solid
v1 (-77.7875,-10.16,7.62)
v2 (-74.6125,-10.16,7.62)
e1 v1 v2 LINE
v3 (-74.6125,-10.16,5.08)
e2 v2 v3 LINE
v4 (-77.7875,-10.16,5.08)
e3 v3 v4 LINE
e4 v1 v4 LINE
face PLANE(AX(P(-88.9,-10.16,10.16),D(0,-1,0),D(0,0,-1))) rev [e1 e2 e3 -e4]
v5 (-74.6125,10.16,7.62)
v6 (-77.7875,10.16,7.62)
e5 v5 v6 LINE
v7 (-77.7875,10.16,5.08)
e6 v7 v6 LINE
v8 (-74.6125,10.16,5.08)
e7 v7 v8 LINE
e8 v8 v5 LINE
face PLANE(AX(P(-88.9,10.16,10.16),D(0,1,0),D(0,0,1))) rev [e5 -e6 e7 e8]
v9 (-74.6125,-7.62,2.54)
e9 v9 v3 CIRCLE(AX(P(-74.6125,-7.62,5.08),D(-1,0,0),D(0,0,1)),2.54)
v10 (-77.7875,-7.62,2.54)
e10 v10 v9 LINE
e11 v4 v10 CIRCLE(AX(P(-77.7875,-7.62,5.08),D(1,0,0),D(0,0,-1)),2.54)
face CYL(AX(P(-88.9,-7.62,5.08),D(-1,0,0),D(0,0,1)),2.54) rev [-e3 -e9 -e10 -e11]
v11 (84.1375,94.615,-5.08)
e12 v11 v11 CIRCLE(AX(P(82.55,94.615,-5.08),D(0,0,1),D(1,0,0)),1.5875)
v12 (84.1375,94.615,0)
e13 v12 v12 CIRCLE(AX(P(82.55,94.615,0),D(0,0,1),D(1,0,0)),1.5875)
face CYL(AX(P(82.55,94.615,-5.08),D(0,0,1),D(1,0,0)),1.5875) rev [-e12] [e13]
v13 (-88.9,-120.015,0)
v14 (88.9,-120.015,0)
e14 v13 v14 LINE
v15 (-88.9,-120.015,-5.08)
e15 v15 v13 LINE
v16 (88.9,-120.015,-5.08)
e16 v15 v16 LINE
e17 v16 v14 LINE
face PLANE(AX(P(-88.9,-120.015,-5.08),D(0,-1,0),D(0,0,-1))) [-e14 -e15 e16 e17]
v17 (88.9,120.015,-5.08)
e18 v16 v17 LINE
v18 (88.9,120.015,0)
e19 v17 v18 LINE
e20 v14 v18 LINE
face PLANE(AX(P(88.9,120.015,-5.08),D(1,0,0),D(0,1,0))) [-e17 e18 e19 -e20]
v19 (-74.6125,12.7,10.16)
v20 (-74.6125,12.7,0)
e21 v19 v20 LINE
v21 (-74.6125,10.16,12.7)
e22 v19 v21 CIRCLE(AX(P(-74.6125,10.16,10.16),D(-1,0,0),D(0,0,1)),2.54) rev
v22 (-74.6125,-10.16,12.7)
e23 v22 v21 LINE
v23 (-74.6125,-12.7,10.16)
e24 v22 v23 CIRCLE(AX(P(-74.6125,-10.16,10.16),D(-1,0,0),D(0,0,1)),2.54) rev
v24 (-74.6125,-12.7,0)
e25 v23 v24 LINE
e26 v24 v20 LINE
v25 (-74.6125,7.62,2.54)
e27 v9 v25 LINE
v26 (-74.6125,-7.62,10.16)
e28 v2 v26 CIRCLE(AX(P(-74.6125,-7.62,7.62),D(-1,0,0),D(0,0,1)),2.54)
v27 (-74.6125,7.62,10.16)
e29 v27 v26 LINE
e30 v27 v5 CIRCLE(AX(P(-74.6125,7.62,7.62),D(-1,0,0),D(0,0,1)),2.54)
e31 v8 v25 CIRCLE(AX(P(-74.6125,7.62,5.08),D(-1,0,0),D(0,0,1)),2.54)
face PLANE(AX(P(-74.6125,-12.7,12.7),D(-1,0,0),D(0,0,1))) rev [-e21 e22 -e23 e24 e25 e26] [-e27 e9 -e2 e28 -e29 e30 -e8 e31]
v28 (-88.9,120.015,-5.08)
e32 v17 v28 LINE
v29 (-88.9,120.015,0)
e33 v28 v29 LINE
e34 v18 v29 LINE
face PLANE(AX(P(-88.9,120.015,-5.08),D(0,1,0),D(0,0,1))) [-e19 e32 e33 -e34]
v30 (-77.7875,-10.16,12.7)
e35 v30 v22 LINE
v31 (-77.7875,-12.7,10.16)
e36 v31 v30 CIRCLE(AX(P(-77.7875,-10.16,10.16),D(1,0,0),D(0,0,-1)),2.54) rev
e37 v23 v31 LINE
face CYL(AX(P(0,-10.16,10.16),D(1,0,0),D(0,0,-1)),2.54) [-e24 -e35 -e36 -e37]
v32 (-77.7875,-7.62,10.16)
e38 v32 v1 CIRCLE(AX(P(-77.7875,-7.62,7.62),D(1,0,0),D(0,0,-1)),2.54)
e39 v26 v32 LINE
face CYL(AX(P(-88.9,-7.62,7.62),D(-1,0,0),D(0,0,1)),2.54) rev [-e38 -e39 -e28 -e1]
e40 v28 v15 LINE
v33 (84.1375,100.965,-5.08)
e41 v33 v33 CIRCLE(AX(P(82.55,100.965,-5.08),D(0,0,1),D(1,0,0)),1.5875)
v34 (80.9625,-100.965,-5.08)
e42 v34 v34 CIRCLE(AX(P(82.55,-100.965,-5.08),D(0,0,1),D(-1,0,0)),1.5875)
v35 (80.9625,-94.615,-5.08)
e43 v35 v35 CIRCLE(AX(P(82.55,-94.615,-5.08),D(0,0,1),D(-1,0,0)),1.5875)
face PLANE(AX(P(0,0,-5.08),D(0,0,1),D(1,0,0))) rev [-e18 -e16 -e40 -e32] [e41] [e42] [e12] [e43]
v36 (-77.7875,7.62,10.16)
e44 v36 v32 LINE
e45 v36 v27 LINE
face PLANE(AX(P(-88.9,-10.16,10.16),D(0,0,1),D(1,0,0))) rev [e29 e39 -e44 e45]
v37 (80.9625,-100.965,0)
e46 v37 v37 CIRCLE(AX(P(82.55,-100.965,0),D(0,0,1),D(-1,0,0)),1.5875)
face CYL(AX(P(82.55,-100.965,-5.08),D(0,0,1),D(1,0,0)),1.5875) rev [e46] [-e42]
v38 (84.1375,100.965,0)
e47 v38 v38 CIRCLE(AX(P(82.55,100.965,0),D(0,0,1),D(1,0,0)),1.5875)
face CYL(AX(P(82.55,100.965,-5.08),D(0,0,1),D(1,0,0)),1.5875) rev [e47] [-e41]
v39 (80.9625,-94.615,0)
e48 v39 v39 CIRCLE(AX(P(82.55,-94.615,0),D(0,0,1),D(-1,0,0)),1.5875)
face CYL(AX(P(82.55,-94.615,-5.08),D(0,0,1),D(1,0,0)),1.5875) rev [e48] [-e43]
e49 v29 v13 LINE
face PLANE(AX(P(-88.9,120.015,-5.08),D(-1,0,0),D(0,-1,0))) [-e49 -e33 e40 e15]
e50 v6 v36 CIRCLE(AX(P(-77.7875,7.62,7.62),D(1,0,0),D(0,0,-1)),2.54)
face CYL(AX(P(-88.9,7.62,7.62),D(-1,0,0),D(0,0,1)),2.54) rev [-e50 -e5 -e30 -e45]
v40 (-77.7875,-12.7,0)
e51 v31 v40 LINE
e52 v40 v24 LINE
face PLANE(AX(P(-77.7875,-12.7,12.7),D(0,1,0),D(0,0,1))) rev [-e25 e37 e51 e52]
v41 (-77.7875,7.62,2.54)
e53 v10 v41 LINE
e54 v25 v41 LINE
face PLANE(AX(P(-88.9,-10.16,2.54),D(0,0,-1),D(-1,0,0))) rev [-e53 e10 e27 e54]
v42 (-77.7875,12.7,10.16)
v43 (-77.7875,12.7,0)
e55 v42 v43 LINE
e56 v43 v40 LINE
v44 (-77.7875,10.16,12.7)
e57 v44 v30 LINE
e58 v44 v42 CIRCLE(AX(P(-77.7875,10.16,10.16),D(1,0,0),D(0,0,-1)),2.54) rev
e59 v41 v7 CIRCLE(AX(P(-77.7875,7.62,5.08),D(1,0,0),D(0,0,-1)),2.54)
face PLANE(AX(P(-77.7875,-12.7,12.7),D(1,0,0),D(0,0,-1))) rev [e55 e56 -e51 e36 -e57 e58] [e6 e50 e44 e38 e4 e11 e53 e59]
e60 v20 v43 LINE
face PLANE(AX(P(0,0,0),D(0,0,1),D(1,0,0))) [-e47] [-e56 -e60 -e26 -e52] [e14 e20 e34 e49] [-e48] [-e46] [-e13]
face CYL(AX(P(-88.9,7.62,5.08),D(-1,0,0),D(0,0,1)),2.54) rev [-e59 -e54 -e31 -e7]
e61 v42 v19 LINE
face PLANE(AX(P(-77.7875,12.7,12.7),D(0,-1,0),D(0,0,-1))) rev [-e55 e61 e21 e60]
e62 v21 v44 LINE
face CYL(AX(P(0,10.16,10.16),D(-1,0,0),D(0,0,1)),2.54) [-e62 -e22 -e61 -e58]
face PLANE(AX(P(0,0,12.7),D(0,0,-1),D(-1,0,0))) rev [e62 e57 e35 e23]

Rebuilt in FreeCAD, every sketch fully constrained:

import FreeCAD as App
import Part
import Sketcher

V = App.Vector
Q = App.Units.Quantity


def edges_at(feature, points):
    """Names of the edges that pass closest to the given points."""
    edges = feature.Shape.Edges
    near = lambda p: min(range(len(edges)), key=lambda i: edges[i].distToShape(Part.Vertex(*p))[0])
    return sorted({f"Edge{near(p) + 1}" for p in points})


def add_polygon(sketch, points):
    """Adds a closed chain of lines whose ends are joined by coincident constraints."""
    first, n = sketch.GeometryCount, len(points)
    for a, b in zip(points, points[1:] + points[:1]):
        sketch.addGeometry(Part.LineSegment(App.Vector(*a, 0), App.Vector(*b, 0)), False)
    for i in range(n):
        sketch.addConstraint(Sketcher.Constraint("Coincident", first + i, 2, first + (i + 1) % n, 1))

doc = App.newDocument("Part")
body = doc.addObject("PartDesign::Body", "Body")

# Sketch on XY plane
sketch1 = body.newObject("Sketcher::SketchObject", "Sketch")
sketch1.AttachmentSupport = (doc.getObject("XY_Plane"), [""])
sketch1.MapMode = "FlatFace"
add_polygon(sketch1, [(-89, 120), (-89, -120), (89, -120), (89, 120)])  # lines 0-3
sketch1.addConstraint([
    Sketcher.Constraint("Vertical", 0),
    Sketcher.Constraint("Horizontal", 1),
    Sketcher.Constraint("Vertical", 2),
    Sketcher.Constraint("Horizontal", 3),
    Sketcher.Constraint("Symmetric", 0, 2, 2, 2, -1, 1),
    Sketcher.Constraint("DistanceX", 1, 1, 1, 2, Q("7 in")),
    Sketcher.Constraint("DistanceY", 0, 2, 0, 1, Q("9.45 in")),
])
pad1 = body.newObject("PartDesign::Pad", "Pad")
pad1.Profile = sketch1
pad1.Length = Q("0.2 in")
pad1.Reversed = True

# Sketch on XY plane
sketch2 = body.newObject("Sketcher::SketchObject", "Sketch001")
sketch2.AttachmentSupport = (doc.getObject("XY_Plane"), [""])
sketch2.MapMode = "FlatFace"
sketch2.addGeometry([
    Part.Circle(V(82.5, 101, 0), V(0, 0, 1), 1.6),
    Part.Circle(V(82.5, 94.6, 0), V(0, 0, 1), 1.6),
    Part.Circle(V(82.5, -94.6, 0), V(0, 0, 1), 1.6),
    Part.Circle(V(82.5, -101, 0), V(0, 0, 1), 1.6),
], False)
sketch2.addConstraint([
    Sketcher.Constraint("Equal", 0, 1),
    Sketcher.Constraint("Equal", 1, 2),
    Sketcher.Constraint("Equal", 2, 3),
    Sketcher.Constraint("Symmetric", 1, 3, 2, 3, -1),
    Sketcher.Constraint("Symmetric", 0, 3, 3, 3, -1),
    Sketcher.Constraint("Vertical", 0, 3, 1, 3),
    Sketcher.Constraint("Diameter", 0, Q("0.125 in")),
    Sketcher.Constraint("DistanceY", 2, 3, 0, 3, Q("7.7 in")),
    Sketcher.Constraint("DistanceX", -1, 1, 0, 3, Q("3.25 in")),
    Sketcher.Constraint("DistanceY", 1, 3, 0, 3, Q("0.25 in")),
])
pocket1 = body.newObject("PartDesign::Pocket", "Pocket")
pocket1.Profile = sketch2
pocket1.Type = "ThroughAll"

# Sketch on XY plane
sketch3 = body.newObject("Sketcher::SketchObject", "Sketch002")
sketch3.AttachmentSupport = (doc.getObject("XY_Plane"), [""])
sketch3.MapMode = "FlatFace"
add_polygon(sketch3, [(-77.8, 12.7), (-77.8, -12.7), (-74.6, -12.7), (-74.6, 12.7)])  # lines 0-3
sketch3.addConstraint([
    Sketcher.Constraint("Vertical", 0),
    Sketcher.Constraint("Horizontal", 1),
    Sketcher.Constraint("Vertical", 2),
    Sketcher.Constraint("Horizontal", 3),
    Sketcher.Constraint("DistanceY", 0, 2, 0, 1, Q("1 in")),
    Sketcher.Constraint("DistanceY", 0, 2, -1, 1, Q("0.5 in")),
    Sketcher.Constraint("DistanceX", 1, 1, 1, 2, Q("0.125 in")),
    Sketcher.Constraint("DistanceX", 0, 2, -1, 1, Q("3.0625 in")),
])
pad2 = body.newObject("PartDesign::Pad", "Pad001")
pad2.Profile = sketch3
pad2.Length = Q("0.5 in")

# Sketch on YZ plane
sketch4 = body.newObject("Sketcher::SketchObject", "Sketch003")
sketch4.AttachmentSupport = (doc.getObject("YZ_Plane"), [""])
sketch4.MapMode = "FlatFace"
sketch4.AttachmentOffset = App.Placement(V(0, 0, -2.9375 * 25.4), App.Rotation())
add_polygon(sketch4, [(10, 10), (-10, 10), (-10, 3), (10, 3)])  # lines 0-3
sketch4.addConstraint([
    Sketcher.Constraint("Horizontal", 0),
    Sketcher.Constraint("Vertical", 1),
    Sketcher.Constraint("Horizontal", 2),
    Sketcher.Constraint("Vertical", 3),
    Sketcher.Constraint("DistanceX", 0, 2, 0, 1, Q("0.8 in")),
    Sketcher.Constraint("DistanceY", 1, 2, 1, 1, Q("0.3 in")),
    Sketcher.Constraint("DistanceX", 0, 2, -1, 1, Q("0.4 in")),
    Sketcher.Constraint("DistanceY", -1, 1, 0, 2, Q("0.4 in")),
])
pocket2 = body.newObject("PartDesign::Pocket", "Pocket001")
pocket2.Profile = sketch4
pocket2.Type = "ThroughAll"
doc.recompute()

fillet = body.newObject("PartDesign::Fillet", "Fillet")
fillet.Base = (pocket2, edges_at(pocket2, [
    (-76.2, 12.7, 12.7),
    (-76.2, -12.7, 12.7),
    (-76.2, 10.16, 2.54),
    (-76.2, -10.16, 2.54),
    (-76.2, -10.16, 10.16),
    (-76.2, 10.16, 10.16),
]))
fillet.Radius = Q("0.1 in")

doc.recompute()
